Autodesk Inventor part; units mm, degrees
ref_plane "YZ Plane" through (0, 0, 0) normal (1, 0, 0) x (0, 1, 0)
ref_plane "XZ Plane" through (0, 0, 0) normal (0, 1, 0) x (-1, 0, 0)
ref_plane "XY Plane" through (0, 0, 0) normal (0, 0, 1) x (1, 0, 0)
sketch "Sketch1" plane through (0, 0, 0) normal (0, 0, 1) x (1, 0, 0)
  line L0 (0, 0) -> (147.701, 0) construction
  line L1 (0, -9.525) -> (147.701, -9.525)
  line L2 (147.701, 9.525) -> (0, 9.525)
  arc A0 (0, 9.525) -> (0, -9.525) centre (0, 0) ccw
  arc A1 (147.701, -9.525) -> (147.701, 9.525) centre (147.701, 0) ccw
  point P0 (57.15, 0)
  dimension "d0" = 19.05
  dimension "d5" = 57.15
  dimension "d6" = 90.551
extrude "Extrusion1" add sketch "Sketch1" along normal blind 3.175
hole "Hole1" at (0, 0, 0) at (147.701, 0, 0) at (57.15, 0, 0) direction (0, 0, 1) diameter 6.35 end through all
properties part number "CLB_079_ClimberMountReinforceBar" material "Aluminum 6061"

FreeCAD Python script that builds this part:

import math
import FreeCAD as App
import Part
import Sketcher

V = App.Vector
Q = App.Units.Quantity

doc = App.newDocument("Part")
body = doc.addObject("PartDesign::Body", "Body")

sketch1 = body.newObject("Sketcher::SketchObject", "Sketch")
sketch1.AttachmentSupport = (doc.getObject("XY_Plane"), [""])
sketch1.MapMode = "FlatFace"
sketch1.addGeometry([
    Part.ArcOfCircle(Part.Circle(V(0, 0, 0), V(0, 0, 1), 10), math.radians(90), math.radians(270)),
    Part.LineSegment(V(0, -10, 0), V(148, -10, 0)),
    Part.ArcOfCircle(Part.Circle(V(148, 0, 0), V(0, 0, 1), 10), math.radians(-90), math.radians(90)),
    Part.LineSegment(V(148, 10, 0), V(0, 10, 0)),
], False)
sketch1.addConstraint([
    Sketcher.Constraint("Tangent", 0, 2, 1, 1),
    Sketcher.Constraint("Tangent", 1, 2, 2, 1),
    Sketcher.Constraint("Tangent", 2, 2, 3, 1),
    Sketcher.Constraint("Tangent", 3, 2, 0, 1),
    Sketcher.Constraint("Horizontal", 1),
    Sketcher.Constraint("Horizontal", 3),
    Sketcher.Constraint("Coincident", 0, 3, -1, 1),
    Sketcher.Constraint("Radius", 0, Q("0.375 in")),
    Sketcher.Constraint("DistanceX", 1, 1, 1, 2, Q("5.815 in")),
])
pad1 = body.newObject("PartDesign::Pad", "Pad")
pad1.Profile = sketch1
pad1.Length = Q("0.125 in")

sketch2 = body.newObject("Sketcher::SketchObject", "Sketch001")
sketch2.AttachmentSupport = (doc.getObject("XY_Plane"), [""])
sketch2.MapMode = "FlatFace"
sketch2.addGeometry([
    Part.Circle(V(0, 0, 0), V(0, 0, 1), 3.2),
    Part.Circle(V(147.7, 0, 0), V(0, 0, 1), 3.2),
    Part.Circle(V(57.1, 0, 0), V(0, 0, 1), 3.2),
], False)
sketch2.addConstraint([
    Sketcher.Constraint("Coincident", 0, 3, -1, 1),
    Sketcher.Constraint("Equal", 0, 1),
    Sketcher.Constraint("Equal", 1, 2),
    Sketcher.Constraint("PointOnObject", 1, 3, -1),
    Sketcher.Constraint("PointOnObject", 2, 3, -1),
    Sketcher.Constraint("Diameter", 0, Q("0.25 in")),
    Sketcher.Constraint("DistanceX", -1, 1, 2, 3, Q("2.25 in")),
    Sketcher.Constraint("DistanceX", -1, 1, 1, 3, Q("5.815 in")),
])
doc.recompute()
hole = body.newObject("PartDesign::Hole", "Hole")
hole.Profile = sketch2
hole.ThreadType = "None"
hole.Diameter = Q("0.25 in")
hole.DepthType = "ThroughAll"
hole.Reversed = True

doc.recompute()
